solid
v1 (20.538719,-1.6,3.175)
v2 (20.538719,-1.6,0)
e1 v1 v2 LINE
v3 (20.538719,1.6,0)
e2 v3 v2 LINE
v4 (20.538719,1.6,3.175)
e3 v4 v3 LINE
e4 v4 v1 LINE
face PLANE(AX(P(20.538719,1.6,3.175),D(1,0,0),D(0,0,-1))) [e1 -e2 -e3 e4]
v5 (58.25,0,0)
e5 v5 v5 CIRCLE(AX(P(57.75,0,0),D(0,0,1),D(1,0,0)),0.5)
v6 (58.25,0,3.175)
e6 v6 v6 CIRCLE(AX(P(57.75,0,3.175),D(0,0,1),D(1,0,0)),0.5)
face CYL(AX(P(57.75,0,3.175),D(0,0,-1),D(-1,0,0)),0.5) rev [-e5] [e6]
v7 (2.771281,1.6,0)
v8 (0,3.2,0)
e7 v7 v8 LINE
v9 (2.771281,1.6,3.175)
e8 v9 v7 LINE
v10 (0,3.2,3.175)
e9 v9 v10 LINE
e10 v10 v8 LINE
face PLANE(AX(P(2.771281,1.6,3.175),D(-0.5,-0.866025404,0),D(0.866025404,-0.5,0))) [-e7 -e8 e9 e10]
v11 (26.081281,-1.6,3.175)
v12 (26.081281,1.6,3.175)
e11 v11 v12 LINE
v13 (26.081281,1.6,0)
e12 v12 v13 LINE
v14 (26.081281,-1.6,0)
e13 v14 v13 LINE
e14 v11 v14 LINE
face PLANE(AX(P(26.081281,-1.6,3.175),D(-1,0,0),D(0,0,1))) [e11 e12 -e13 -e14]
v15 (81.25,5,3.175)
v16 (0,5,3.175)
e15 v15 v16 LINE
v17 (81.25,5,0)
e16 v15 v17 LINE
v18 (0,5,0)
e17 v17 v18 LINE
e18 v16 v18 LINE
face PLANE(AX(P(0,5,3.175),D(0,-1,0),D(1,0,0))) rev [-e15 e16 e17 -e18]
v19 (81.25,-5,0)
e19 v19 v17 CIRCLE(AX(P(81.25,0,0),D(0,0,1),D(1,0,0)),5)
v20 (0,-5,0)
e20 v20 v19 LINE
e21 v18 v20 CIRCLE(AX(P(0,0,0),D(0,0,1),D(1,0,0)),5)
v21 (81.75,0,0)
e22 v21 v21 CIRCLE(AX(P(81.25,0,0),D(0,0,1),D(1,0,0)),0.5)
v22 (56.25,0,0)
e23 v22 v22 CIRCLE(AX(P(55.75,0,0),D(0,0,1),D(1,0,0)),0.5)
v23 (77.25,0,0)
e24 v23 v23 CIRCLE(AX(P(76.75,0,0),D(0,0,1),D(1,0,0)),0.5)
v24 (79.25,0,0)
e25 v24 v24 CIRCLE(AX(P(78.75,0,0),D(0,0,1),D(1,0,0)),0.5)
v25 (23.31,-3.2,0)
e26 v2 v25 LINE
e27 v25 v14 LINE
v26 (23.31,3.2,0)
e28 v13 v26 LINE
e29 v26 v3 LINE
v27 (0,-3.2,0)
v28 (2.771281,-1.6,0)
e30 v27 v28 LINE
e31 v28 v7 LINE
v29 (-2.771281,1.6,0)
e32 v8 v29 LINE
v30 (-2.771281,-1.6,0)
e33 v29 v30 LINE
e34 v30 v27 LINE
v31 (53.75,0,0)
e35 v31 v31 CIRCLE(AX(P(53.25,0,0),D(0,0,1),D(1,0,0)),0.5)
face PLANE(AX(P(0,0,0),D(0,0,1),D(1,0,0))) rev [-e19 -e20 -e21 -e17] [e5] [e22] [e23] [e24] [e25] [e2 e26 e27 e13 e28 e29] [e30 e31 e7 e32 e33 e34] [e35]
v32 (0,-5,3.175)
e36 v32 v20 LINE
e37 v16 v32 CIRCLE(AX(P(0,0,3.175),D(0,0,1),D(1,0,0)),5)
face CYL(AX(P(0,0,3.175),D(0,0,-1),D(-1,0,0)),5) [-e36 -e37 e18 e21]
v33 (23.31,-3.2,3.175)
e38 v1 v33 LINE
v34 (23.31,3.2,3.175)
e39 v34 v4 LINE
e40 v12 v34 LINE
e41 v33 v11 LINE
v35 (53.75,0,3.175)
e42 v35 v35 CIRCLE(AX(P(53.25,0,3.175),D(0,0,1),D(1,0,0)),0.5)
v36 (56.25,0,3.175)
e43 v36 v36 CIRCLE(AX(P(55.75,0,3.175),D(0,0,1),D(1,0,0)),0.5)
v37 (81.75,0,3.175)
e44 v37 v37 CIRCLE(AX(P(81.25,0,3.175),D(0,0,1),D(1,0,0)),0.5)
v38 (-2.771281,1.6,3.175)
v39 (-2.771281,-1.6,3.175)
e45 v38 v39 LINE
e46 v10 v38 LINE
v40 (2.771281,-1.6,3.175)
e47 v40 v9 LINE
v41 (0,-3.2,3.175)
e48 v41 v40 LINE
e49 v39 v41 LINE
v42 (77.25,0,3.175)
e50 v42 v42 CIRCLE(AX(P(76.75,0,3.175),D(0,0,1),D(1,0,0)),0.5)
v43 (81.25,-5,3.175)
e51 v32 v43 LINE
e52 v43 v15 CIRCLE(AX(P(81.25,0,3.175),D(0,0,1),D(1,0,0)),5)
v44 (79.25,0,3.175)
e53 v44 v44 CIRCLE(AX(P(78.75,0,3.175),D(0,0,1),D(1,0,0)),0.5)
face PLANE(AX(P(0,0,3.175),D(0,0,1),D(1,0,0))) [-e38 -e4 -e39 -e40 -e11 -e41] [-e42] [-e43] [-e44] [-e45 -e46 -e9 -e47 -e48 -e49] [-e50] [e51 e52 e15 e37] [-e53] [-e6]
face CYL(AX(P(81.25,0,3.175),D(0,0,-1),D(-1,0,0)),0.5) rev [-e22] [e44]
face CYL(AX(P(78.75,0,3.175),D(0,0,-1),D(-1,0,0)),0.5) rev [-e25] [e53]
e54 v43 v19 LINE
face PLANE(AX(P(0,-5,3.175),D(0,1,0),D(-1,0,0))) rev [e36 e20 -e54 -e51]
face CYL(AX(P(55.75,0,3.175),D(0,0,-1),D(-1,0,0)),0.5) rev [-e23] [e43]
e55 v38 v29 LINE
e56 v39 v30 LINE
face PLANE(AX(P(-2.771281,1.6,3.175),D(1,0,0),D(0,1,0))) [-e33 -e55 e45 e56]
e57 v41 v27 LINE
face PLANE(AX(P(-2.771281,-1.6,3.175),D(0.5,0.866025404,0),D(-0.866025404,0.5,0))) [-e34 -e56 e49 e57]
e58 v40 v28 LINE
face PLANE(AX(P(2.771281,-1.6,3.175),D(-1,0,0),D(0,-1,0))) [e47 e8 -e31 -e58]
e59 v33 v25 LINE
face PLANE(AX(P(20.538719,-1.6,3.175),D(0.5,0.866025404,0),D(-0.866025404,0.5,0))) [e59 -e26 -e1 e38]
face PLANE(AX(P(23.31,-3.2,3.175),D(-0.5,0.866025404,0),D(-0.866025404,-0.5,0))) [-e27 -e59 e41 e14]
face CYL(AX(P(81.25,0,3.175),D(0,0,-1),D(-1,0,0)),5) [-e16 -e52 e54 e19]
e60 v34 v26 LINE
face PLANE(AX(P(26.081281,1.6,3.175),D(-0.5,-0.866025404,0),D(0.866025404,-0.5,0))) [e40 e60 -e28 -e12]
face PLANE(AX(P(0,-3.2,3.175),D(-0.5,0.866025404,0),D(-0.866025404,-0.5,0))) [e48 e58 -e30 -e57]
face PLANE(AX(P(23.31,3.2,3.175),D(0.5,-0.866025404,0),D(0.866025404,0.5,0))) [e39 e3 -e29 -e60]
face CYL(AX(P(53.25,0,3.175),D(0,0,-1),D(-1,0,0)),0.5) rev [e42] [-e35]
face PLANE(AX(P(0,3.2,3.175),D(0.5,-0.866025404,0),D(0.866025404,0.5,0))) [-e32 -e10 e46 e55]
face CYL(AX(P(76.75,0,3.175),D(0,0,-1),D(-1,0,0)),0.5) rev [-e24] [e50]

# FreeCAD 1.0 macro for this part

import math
import FreeCAD as App
import Part
import Sketcher
from FreeCAD import Vector
Q = App.Units.Quantity


def add_polygon(sketch, points):
    """Adds a closed chain of lines whose ends are joined by coincident constraints."""
    first, n = sketch.GeometryCount, len(points)
    for a, b in zip(points, points[1:] + points[:1]):
        sketch.addGeometry(Part.LineSegment(App.Vector(*a, 0), App.Vector(*b, 0)), False)
    for i in range(n):
        sketch.addConstraint(Sketcher.Constraint("Coincident", first + i, 2, first + (i + 1) % n, 1))

doc = App.newDocument("Part")
body = doc.addObject("PartDesign::Body", "Body")

# Sketch on XY plane
sketch1 = body.newObject("Sketcher::SketchObject", "Sketch")
sketch1.AttachmentSupport = (doc.getObject("XY_Plane"), [""])
sketch1.MapMode = "FlatFace"
sketch1.addGeometry(Part.LineSegment(Vector(81.2, 5, 0), Vector(0, 5, 0)), False)  # 0
sketch1.addGeometry(Part.ArcOfCircle(Part.Circle(Vector(0, 0, 0), Vector(0, 0, 1), 5), math.radians(90), math.radians(270)), False)  # 1
sketch1.addGeometry(Part.LineSegment(Vector(0, -5, 0), Vector(81.2, -5, 0)), False)  # 2
sketch1.addGeometry(Part.ArcOfCircle(Part.Circle(Vector(81.2, 0, 0), Vector(0, 0, 1), 5), math.radians(-90), math.radians(90)), False)  # 3
sketch1.addGeometry(Part.Circle(Vector(81.2, 0, 0), Vector(0, 0, 1), 0.5), False)  # 4
sketch1.addGeometry(Part.Circle(Vector(78.8, 0, 0), Vector(0, 0, 1), 0.5), False)  # 5
sketch1.addGeometry(Part.Circle(Vector(76.8, 0, 0), Vector(0, 0, 1), 0.5), False)  # 6
sketch1.addGeometry(Part.Circle(Vector(57.8, 0, 0), Vector(0, 0, 1), 0.5), False)  # 7
sketch1.addGeometry(Part.Circle(Vector(55.8, 0, 0), Vector(0, 0, 1), 0.5), False)  # 8
sketch1.addGeometry(Part.Circle(Vector(53.2, 0, 0), Vector(0, 0, 1), 0.5), False)  # 9
add_polygon(sketch1, [(26.1, 1.6), (26.1, -1.6), (23.3, -3.2), (20.5, -1.6), (20.5, 1.6), (23.3, 3.2)])  # lines 10-15
add_polygon(sketch1, [(0, 3.2), (2.8, 1.6), (2.8, -1.6), (0, -3.2), (-2.8, -1.6), (-2.8, 1.6)])  # lines 16-21
sketch1.addConstraint([
    Sketcher.Constraint("Tangent", 0, 2, 1, 1),
    Sketcher.Constraint("Tangent", 1, 2, 2, 1),
    Sketcher.Constraint("Tangent", 2, 2, 3, 1),
    Sketcher.Constraint("Tangent", 3, 2, 0, 1),
    Sketcher.Constraint("Horizontal", 0),
    Sketcher.Constraint("Horizontal", 2),
    Sketcher.Constraint("Vertical", 10),
    Sketcher.Constraint("Vertical", 13),
    Sketcher.Constraint("Vertical", 17),
    Sketcher.Constraint("Vertical", 20),
    Sketcher.Constraint("Coincident", 1, 3, -1, 1),
    Sketcher.Constraint("Coincident", 4, 3, 3, 3),
    Sketcher.Constraint("Equal", 4, 5),
    Sketcher.Constraint("Equal", 5, 6),
    Sketcher.Constraint("Equal", 6, 7),
    Sketcher.Constraint("Equal", 7, 8),
    Sketcher.Constraint("Equal", 8, 9),
    Sketcher.Constraint("Symmetric", 16, 2, 19, 2, -1, 1),
    Sketcher.Constraint("Symmetric", 18, 2, 21, 2, -1, 1),
    Sketcher.Constraint("Symmetric", 11, 2, 14, 2, -1),
    Sketcher.Constraint("PointOnObject", 5, 3, -1),
    Sketcher.Constraint("PointOnObject", 6, 3, -1),
    Sketcher.Constraint("PointOnObject", 7, 3, -1),
    Sketcher.Constraint("PointOnObject", 8, 3, -1),
    Sketcher.Constraint("PointOnObject", 9, 3, -1),
    Sketcher.Constraint("PointOnObject", 18, 2, -2),
    Sketcher.Constraint("Parallel", 11, 14),
    Sketcher.Constraint("Parallel", 12, 15),
    Sketcher.Constraint("Parallel", 15, 16),
    Sketcher.Constraint("Parallel", 14, 18),
    Sketcher.Constraint("Parallel", 18, 21),
    Sketcher.Constraint("Horizontal", 10, 2, 12, 2),
    Sketcher.Constraint("Horizontal", 13, 2, 15, 2),
    Sketcher.Constraint("Horizontal", 15, 2, 16, 2),
    Sketcher.Constraint("Horizontal", 11, 2, 18, 2),
    Sketcher.Constraint("Diameter", 4, Q("1 mm")),
    Sketcher.Constraint("Radius", 1, Q("5 mm")),
    Sketcher.Constraint("Angle", 11, Q("-150 deg")),
    Sketcher.Constraint("DistanceY", 10, 2, 10, 1, Q("3.2 mm")),
    Sketcher.Constraint("DistanceX", 6, 3, 5, 3, Q("2 mm")),
    Sketcher.Constraint("DistanceX", 7, 3, 6, 3, Q("19 mm")),
    Sketcher.Constraint("DistanceX", 8, 3, 7, 3, Q("2 mm")),
    Sketcher.Constraint("DistanceX", 9, 3, 3, 3, Q("28 mm")),
    Sketcher.Constraint("Distance", 11, Q("3.2 mm")),
    Sketcher.Constraint("DistanceX", 0, 2, 0, 1, Q("81.25 mm")),
    Sketcher.Constraint("DistanceX", 5, 3, 3, 3, Q("2.5 mm")),
    Sketcher.Constraint("DistanceX", -1, 1, 11, 2, Q("23.31 mm")),
])
pad1 = body.newObject("PartDesign::Pad", "Pad")
pad1.Profile = sketch1
pad1.Length = 3.175

doc.recompute()
